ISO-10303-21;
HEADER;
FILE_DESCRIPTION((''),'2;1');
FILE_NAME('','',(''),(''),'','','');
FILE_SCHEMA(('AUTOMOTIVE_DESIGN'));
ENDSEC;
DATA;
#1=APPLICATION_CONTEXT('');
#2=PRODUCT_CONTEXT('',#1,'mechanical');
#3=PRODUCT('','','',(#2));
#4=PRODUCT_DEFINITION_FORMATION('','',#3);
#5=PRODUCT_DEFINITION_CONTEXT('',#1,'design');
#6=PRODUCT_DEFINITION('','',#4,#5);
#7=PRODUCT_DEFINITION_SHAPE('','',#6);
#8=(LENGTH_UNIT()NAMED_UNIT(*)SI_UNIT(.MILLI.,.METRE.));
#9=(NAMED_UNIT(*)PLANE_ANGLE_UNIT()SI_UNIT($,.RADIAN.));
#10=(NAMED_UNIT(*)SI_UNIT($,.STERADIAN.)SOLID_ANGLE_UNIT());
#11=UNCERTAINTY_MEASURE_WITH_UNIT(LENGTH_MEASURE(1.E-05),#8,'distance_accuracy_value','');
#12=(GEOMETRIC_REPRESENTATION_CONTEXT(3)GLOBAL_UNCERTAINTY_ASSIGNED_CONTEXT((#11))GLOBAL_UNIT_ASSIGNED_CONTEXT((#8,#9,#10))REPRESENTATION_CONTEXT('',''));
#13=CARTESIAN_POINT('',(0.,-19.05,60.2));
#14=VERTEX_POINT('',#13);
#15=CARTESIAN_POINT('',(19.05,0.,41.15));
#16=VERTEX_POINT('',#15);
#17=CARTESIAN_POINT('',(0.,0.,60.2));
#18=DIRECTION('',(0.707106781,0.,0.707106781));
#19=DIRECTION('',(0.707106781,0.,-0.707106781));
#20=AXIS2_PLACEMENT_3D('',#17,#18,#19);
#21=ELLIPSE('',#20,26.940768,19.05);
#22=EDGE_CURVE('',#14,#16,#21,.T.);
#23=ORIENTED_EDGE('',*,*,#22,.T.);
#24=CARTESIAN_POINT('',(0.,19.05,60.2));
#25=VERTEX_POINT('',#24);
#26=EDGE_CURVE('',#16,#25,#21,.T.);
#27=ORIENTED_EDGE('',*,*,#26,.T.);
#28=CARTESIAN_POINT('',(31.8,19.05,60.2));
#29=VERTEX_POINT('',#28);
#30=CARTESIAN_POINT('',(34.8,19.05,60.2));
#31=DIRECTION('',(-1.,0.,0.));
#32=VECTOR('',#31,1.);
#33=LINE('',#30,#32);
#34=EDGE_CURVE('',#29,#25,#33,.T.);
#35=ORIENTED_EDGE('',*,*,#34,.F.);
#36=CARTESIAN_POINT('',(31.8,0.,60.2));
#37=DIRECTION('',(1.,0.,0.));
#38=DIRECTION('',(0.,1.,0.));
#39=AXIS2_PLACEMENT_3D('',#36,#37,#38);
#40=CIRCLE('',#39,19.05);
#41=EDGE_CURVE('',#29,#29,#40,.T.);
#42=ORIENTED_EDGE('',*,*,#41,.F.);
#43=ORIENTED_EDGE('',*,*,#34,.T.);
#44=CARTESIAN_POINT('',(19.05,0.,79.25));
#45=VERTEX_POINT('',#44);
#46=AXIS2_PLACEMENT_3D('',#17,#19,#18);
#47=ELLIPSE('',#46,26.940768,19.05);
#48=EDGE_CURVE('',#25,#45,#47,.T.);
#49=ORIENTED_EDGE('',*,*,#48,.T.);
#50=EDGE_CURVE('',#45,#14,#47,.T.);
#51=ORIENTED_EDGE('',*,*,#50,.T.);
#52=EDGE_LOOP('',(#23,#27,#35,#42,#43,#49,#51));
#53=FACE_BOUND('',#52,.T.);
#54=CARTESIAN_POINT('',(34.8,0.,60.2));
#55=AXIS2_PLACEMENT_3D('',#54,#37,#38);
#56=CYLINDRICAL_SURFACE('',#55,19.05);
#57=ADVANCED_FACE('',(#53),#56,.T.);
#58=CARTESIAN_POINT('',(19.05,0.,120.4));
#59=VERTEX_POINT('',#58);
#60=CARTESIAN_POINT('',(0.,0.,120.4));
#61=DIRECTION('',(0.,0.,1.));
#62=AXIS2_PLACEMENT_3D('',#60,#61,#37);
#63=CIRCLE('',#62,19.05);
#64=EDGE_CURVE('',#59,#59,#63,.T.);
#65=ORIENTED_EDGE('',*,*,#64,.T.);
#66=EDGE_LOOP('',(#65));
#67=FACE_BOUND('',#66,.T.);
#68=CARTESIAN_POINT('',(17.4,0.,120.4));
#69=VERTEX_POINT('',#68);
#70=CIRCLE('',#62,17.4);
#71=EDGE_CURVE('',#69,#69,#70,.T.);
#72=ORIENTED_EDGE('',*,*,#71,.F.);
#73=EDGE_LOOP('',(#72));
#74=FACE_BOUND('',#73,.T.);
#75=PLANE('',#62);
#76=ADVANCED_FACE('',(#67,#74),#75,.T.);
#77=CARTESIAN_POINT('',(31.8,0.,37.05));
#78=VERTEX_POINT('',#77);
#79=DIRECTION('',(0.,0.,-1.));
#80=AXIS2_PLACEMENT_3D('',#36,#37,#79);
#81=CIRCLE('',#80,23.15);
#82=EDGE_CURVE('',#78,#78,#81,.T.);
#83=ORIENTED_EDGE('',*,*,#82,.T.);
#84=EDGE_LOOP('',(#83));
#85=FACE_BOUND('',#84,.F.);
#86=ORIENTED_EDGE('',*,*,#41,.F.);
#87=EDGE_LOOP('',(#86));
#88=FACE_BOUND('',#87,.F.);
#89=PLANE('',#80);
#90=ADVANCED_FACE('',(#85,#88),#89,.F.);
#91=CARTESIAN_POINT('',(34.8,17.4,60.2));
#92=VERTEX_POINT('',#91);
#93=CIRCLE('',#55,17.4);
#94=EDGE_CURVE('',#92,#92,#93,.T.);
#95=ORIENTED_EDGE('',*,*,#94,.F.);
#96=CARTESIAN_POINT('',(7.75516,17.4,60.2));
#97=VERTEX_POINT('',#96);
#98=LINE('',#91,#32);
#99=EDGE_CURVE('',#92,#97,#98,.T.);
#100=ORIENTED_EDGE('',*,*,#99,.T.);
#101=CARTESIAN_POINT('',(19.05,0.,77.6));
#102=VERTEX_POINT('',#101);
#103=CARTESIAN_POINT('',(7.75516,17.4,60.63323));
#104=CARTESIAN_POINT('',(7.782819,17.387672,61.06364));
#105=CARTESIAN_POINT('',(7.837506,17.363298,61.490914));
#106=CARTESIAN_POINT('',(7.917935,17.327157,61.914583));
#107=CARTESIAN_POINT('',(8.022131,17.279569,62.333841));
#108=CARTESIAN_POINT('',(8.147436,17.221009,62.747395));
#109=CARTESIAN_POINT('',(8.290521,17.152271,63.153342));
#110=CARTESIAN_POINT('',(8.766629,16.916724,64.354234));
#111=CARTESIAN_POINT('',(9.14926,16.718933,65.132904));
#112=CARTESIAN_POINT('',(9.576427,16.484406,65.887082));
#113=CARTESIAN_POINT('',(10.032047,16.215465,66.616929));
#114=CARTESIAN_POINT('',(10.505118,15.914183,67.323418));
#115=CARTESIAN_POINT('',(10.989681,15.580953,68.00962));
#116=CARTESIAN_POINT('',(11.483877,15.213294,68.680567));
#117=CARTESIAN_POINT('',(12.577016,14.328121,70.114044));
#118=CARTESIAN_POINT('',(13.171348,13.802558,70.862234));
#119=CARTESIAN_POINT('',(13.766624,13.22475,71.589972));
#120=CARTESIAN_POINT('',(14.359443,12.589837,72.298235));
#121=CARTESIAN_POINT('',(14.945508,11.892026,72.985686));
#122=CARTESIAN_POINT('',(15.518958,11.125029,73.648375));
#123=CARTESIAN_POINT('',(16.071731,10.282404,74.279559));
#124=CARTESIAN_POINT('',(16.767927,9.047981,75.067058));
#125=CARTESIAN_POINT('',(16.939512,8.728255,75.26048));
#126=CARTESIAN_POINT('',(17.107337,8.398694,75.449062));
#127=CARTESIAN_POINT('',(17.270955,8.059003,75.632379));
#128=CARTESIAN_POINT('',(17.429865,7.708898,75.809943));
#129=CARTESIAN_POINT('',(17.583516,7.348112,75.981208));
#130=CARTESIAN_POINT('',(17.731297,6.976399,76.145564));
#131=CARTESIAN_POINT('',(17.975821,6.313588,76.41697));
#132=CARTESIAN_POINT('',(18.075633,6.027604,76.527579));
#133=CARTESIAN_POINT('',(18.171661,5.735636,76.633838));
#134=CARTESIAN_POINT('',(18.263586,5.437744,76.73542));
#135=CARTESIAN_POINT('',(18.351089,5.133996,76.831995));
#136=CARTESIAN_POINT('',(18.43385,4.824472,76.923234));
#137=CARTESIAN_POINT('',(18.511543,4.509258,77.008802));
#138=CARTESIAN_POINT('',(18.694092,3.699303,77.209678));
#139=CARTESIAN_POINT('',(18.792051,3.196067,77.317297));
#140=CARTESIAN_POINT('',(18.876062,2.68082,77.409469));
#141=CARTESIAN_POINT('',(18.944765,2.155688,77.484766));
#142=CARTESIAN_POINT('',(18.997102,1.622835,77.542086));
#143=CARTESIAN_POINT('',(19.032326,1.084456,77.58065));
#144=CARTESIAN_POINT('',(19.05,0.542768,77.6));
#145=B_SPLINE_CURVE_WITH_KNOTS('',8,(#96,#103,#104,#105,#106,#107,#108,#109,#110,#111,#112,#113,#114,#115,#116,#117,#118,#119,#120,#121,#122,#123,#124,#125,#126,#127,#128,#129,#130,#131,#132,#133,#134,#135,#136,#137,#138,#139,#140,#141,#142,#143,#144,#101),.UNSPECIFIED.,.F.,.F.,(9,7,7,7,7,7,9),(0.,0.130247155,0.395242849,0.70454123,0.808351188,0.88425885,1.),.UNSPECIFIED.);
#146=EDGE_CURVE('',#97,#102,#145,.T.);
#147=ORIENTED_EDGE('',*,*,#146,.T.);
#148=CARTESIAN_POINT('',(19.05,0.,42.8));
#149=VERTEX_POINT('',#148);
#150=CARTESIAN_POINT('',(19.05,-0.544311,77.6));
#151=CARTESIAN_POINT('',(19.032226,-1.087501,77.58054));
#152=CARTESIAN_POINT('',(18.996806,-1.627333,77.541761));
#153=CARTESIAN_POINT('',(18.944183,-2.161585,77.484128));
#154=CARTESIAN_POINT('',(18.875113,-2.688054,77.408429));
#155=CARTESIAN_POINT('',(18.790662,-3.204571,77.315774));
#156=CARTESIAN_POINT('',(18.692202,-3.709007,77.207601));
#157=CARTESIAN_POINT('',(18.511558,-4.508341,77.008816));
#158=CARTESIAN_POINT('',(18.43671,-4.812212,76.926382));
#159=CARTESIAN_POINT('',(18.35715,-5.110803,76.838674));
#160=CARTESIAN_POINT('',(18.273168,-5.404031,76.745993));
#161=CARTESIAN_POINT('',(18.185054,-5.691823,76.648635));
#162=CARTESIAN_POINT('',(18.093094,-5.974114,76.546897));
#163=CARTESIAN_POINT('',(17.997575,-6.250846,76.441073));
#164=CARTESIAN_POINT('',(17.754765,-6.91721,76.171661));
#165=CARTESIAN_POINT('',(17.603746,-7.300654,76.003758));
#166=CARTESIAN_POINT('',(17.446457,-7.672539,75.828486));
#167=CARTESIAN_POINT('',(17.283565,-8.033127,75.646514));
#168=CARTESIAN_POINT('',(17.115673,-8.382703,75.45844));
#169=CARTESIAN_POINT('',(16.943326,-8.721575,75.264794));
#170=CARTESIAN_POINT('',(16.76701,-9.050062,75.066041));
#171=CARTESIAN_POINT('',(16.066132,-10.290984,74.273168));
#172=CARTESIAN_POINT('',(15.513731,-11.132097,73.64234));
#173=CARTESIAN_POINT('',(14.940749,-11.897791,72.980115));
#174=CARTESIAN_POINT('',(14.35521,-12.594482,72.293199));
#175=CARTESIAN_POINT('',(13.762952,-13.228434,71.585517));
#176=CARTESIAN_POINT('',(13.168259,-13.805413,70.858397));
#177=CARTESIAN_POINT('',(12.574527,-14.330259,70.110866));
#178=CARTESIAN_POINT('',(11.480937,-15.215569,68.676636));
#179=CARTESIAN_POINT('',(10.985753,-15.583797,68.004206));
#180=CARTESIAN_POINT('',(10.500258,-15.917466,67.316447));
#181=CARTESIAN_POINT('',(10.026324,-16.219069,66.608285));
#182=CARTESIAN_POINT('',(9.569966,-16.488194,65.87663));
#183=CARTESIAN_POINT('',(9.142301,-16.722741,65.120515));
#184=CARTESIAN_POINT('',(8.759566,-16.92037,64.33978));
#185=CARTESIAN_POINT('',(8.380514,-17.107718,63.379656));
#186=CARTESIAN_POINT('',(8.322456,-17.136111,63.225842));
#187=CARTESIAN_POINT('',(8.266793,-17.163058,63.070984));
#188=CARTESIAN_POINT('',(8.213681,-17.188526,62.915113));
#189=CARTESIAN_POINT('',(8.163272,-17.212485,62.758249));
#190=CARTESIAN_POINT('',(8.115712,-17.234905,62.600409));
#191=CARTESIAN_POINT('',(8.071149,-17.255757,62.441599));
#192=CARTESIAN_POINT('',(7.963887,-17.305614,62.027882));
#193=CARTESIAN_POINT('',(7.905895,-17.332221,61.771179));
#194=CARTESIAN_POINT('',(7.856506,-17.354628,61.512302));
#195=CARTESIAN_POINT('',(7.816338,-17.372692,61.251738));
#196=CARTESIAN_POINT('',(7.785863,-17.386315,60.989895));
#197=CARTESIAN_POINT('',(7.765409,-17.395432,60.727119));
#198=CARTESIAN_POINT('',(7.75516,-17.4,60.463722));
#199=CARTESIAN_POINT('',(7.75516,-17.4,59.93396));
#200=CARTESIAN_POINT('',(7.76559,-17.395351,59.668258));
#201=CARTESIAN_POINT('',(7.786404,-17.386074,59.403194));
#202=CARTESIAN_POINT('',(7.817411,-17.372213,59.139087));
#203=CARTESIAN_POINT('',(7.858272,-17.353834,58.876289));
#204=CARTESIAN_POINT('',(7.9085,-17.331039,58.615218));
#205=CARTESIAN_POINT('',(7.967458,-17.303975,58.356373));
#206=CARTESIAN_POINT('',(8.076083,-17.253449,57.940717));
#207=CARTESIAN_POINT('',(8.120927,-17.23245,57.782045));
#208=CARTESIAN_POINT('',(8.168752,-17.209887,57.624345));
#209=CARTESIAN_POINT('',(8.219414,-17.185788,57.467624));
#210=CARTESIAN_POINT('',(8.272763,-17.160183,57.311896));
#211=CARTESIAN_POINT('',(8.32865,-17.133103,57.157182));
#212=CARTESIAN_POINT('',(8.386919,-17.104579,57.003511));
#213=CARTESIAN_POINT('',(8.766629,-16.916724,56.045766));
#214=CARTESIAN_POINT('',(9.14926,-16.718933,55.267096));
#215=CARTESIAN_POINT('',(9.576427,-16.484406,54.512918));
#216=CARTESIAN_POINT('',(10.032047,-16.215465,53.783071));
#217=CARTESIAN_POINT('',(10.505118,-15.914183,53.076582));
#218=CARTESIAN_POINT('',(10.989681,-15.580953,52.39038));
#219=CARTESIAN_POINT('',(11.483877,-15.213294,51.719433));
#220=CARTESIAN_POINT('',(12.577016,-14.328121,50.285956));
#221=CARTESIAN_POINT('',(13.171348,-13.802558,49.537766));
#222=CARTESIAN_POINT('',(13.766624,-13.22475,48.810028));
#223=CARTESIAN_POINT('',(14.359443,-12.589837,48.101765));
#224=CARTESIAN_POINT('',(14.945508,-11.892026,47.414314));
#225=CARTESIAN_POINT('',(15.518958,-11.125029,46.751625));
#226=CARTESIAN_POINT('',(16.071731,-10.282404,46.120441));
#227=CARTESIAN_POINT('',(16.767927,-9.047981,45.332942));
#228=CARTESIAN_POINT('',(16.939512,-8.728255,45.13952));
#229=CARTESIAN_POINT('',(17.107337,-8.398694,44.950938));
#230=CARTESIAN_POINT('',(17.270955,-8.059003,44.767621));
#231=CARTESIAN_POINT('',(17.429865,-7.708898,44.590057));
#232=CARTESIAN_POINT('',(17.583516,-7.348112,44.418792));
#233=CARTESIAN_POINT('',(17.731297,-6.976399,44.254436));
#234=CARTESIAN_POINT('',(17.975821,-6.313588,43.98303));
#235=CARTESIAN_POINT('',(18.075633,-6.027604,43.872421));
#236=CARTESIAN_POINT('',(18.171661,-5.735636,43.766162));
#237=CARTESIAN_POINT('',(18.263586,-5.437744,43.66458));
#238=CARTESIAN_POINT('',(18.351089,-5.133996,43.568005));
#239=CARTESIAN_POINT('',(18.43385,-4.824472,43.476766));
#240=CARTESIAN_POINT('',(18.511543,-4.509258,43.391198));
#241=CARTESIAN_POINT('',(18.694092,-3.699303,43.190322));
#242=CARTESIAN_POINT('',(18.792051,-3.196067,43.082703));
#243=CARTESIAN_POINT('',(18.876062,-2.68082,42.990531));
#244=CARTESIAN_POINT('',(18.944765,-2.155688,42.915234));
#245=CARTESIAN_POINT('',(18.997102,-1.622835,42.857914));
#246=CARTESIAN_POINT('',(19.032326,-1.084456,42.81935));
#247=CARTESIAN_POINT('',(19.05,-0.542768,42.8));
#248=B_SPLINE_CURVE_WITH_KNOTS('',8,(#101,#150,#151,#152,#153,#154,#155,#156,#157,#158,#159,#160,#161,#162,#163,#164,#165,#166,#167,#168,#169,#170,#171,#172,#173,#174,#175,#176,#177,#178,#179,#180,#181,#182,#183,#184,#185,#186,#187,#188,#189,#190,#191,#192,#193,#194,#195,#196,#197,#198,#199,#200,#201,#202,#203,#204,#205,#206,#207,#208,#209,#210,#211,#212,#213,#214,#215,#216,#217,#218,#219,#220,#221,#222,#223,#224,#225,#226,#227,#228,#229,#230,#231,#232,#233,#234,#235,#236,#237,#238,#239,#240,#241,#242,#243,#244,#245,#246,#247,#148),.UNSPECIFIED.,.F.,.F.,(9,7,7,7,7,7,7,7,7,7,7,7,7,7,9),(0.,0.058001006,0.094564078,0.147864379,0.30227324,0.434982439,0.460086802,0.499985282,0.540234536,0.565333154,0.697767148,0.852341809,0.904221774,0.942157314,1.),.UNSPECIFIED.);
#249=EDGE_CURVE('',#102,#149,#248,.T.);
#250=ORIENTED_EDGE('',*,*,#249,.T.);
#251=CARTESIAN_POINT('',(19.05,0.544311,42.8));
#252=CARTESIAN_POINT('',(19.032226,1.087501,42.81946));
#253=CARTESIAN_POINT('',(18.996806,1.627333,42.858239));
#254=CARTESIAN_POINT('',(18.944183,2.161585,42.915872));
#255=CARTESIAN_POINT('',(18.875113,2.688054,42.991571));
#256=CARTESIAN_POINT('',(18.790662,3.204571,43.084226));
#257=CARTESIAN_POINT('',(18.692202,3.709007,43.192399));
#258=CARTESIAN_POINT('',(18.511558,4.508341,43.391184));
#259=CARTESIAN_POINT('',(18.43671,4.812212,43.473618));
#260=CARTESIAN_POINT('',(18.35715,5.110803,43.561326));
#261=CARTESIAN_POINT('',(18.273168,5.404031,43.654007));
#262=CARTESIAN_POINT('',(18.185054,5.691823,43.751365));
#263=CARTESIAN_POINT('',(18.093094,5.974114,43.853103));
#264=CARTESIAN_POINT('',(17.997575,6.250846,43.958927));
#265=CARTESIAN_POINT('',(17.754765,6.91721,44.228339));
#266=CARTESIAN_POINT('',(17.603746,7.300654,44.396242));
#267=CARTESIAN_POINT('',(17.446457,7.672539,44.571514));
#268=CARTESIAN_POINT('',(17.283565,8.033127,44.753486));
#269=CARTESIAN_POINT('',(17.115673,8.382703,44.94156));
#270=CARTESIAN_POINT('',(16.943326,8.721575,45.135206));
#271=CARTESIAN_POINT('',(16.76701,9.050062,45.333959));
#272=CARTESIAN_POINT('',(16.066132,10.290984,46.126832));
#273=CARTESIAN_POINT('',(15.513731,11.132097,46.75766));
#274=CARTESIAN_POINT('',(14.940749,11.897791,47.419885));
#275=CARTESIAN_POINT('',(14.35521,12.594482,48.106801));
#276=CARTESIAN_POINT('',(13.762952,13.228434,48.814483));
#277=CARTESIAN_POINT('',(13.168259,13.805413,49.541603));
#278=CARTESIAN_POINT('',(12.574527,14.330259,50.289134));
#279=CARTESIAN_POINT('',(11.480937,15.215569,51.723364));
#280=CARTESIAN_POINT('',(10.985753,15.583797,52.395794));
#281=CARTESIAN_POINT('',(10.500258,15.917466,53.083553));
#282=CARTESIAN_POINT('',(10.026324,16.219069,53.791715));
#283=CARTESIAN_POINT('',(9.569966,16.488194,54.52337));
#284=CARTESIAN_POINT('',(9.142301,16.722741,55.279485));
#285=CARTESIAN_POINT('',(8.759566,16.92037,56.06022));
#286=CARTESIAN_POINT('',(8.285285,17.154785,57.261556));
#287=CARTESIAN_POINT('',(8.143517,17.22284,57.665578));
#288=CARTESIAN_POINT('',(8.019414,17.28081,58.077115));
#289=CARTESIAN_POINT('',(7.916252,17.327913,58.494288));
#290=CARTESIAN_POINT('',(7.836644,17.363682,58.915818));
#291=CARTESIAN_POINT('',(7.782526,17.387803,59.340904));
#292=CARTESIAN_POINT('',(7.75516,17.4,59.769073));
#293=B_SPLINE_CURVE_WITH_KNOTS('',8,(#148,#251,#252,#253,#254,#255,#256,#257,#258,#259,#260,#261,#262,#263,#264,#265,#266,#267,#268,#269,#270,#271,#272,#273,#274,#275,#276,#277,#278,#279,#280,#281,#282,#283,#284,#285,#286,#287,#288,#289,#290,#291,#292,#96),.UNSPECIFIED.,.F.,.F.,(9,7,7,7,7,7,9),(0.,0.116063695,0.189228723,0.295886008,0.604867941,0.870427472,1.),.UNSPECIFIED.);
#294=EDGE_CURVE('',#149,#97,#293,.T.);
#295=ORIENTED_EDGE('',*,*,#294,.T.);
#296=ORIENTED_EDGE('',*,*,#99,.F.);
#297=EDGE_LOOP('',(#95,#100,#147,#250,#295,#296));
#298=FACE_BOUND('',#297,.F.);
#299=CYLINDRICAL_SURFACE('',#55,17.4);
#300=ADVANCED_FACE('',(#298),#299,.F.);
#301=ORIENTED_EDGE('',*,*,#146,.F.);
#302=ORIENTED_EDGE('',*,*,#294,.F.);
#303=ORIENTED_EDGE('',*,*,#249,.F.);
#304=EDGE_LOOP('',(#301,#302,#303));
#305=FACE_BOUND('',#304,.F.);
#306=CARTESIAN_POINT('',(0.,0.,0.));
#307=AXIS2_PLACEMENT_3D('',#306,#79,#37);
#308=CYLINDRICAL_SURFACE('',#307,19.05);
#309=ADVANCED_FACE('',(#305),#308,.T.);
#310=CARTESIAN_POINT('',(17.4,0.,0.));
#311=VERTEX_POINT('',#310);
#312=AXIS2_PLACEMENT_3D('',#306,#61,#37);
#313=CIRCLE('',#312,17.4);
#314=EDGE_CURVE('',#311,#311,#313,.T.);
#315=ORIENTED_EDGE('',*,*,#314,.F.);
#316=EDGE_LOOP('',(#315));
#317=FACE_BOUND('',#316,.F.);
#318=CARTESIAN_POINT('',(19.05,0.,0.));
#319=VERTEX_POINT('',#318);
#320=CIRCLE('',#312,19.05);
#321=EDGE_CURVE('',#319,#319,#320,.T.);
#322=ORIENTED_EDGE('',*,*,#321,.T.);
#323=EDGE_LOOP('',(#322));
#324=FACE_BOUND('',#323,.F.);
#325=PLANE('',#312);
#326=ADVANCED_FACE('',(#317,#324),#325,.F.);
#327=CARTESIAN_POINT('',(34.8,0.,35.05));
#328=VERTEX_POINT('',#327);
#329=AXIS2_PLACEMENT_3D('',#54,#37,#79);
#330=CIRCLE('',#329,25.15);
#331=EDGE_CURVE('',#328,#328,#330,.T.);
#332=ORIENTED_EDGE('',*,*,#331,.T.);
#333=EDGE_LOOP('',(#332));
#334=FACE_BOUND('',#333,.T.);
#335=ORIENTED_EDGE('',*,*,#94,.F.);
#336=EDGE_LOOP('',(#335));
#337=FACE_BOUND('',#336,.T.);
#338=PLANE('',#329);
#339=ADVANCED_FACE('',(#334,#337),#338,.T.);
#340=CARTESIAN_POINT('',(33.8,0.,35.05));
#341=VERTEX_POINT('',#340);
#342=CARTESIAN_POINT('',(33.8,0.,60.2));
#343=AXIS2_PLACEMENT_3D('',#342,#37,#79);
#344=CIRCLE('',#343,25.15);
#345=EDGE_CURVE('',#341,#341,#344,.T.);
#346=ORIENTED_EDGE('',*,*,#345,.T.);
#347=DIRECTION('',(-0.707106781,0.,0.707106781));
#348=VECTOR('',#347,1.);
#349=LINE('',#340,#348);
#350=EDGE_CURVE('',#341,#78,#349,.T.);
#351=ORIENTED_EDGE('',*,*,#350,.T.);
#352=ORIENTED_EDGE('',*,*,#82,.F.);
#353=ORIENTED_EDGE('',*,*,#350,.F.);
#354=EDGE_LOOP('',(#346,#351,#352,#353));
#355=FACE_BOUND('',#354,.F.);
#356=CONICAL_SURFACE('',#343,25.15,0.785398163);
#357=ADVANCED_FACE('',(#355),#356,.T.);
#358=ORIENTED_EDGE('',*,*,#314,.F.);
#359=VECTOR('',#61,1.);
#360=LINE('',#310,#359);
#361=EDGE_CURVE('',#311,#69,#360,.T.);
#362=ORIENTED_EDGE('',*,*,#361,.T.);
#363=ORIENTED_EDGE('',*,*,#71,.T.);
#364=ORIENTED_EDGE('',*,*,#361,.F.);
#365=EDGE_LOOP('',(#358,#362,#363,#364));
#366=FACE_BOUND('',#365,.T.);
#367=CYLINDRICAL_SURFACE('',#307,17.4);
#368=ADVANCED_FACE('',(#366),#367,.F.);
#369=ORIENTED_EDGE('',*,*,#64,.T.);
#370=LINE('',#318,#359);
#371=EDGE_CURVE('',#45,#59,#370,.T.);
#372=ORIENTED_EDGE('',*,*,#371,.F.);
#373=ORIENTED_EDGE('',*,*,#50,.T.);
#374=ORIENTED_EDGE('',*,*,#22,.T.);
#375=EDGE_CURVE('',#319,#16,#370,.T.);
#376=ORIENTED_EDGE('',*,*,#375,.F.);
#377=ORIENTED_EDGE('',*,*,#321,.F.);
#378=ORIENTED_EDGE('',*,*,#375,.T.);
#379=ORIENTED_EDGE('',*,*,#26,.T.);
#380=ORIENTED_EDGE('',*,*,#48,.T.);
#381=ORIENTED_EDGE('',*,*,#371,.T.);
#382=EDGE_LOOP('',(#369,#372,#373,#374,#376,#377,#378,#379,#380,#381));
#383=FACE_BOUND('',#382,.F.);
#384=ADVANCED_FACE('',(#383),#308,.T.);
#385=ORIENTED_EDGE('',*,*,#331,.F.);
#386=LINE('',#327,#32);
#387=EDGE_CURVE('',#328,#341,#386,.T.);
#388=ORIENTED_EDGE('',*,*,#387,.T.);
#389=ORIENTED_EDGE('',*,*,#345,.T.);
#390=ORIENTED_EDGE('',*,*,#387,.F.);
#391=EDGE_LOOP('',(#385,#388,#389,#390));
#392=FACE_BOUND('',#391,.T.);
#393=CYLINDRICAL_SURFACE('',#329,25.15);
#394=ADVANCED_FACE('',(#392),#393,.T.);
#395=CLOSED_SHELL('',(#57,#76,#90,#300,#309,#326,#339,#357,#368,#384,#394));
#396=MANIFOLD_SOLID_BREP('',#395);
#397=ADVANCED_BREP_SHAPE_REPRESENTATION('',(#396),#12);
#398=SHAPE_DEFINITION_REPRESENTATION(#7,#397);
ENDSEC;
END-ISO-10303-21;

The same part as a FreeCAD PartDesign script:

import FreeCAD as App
import Part
import Sketcher
from FreeCAD import Vector


def edges_at(feature, points):
    """Names of the edges that pass closest to the given points."""
    edges = feature.Shape.Edges
    near = lambda p: min(range(len(edges)), key=lambda i: edges[i].distToShape(Part.Vertex(*p))[0])
    return sorted({f"Edge{near(p) + 1}" for p in points})

doc = App.newDocument("Part")
body = doc.addObject("PartDesign::Body", "Body")

sketch1 = doc.addObject("Sketcher::SketchObject", "Sketch")
body.addObject(sketch1)
sketch1.AttachmentSupport = (doc.XY_Plane, [""])
sketch1.MapMode = "FlatFace"
sketch1.addGeometry([
    Part.Circle(Vector(0, 0, 0), Vector(0, 0, 1), 19),
    Part.Circle(Vector(0, 0, 0), Vector(0, 0, 1), 17),
], False)
sketch1.addConstraint([
    Sketcher.Constraint("Coincident", 0, 3, -1, 1),
    Sketcher.Constraint("Coincident", 1, 3, -1, 1),
    Sketcher.Constraint("Diameter", 0, 38.1),
    Sketcher.Constraint("Diameter", 1, 34.8),
])
pad1 = doc.addObject("PartDesign::Pad", "Pad")
body.addObject(pad1)
pad1.Profile = sketch1
pad1.Length = 120.4

sketch2 = doc.addObject("Sketcher::SketchObject", "Sketch001")
body.addObject(sketch2)
sketch2.AttachmentSupport = (doc.YZ_Plane, [""])
sketch2.MapMode = "FlatFace"
sketch2.AttachmentOffset = App.Placement(Vector(0, 0, 34.8), App.Rotation())
sketch2.addGeometry([
    Part.Circle(Vector(0, 60, 0), Vector(0, 0, 1), 19),
    Part.Circle(Vector(0, 60, 0), Vector(0, 0, 1), 17),
], False)
sketch2.addConstraint([
    Sketcher.Constraint("Coincident", 1, 3, 0, 3),
    Sketcher.Constraint("PointOnObject", 0, 3, -2),
    Sketcher.Constraint("Diameter", 0, 38.1),
    Sketcher.Constraint("Diameter", 1, 34.8),
    Sketcher.Constraint("DistanceY", -1, 1, 0, 3, 60.2),
])
pad2 = doc.addObject("PartDesign::Pad", "Pad001")
body.addObject(pad2)
pad2.Profile = sketch2
pad2.Type = "UpToFirst"
pad2.Reversed = True

sketch3 = doc.addObject("Sketcher::SketchObject", "Sketch002")
body.addObject(sketch3)
sketch3.AttachmentSupport = (doc.YZ_Plane, [""])
sketch3.MapMode = "FlatFace"
sketch3.AttachmentOffset = App.Placement(Vector(0, 0, 34.8), App.Rotation())
sketch3.addGeometry([
    Part.Circle(Vector(0, 60, 0), Vector(0, 0, 1), 25),
    Part.Circle(Vector(0, 60, 0), Vector(0, 0, 1), 19),
], False)
sketch3.addConstraint([
    Sketcher.Constraint("Coincident", 1, 3, 0, 3),
    Sketcher.Constraint("PointOnObject", 0, 3, -2),
    Sketcher.Constraint("Diameter", 0, 50.3),
    Sketcher.Constraint("Diameter", 1, 38.1),
    Sketcher.Constraint("DistanceY", -1, 1, 0, 3, 60.2),
])
pad3 = doc.addObject("PartDesign::Pad", "Pad002")
body.addObject(pad3)
pad3.Profile = sketch3
pad3.Length = 3
pad3.Reversed = True
doc.recompute()

chamfer = doc.addObject("PartDesign::Chamfer", "Chamfer")
body.addObject(chamfer)
chamfer.Base = (pad3, edges_at(pad3, [(31.8, 0, 85.35)]))
chamfer.Size = 2

doc.recompute()
